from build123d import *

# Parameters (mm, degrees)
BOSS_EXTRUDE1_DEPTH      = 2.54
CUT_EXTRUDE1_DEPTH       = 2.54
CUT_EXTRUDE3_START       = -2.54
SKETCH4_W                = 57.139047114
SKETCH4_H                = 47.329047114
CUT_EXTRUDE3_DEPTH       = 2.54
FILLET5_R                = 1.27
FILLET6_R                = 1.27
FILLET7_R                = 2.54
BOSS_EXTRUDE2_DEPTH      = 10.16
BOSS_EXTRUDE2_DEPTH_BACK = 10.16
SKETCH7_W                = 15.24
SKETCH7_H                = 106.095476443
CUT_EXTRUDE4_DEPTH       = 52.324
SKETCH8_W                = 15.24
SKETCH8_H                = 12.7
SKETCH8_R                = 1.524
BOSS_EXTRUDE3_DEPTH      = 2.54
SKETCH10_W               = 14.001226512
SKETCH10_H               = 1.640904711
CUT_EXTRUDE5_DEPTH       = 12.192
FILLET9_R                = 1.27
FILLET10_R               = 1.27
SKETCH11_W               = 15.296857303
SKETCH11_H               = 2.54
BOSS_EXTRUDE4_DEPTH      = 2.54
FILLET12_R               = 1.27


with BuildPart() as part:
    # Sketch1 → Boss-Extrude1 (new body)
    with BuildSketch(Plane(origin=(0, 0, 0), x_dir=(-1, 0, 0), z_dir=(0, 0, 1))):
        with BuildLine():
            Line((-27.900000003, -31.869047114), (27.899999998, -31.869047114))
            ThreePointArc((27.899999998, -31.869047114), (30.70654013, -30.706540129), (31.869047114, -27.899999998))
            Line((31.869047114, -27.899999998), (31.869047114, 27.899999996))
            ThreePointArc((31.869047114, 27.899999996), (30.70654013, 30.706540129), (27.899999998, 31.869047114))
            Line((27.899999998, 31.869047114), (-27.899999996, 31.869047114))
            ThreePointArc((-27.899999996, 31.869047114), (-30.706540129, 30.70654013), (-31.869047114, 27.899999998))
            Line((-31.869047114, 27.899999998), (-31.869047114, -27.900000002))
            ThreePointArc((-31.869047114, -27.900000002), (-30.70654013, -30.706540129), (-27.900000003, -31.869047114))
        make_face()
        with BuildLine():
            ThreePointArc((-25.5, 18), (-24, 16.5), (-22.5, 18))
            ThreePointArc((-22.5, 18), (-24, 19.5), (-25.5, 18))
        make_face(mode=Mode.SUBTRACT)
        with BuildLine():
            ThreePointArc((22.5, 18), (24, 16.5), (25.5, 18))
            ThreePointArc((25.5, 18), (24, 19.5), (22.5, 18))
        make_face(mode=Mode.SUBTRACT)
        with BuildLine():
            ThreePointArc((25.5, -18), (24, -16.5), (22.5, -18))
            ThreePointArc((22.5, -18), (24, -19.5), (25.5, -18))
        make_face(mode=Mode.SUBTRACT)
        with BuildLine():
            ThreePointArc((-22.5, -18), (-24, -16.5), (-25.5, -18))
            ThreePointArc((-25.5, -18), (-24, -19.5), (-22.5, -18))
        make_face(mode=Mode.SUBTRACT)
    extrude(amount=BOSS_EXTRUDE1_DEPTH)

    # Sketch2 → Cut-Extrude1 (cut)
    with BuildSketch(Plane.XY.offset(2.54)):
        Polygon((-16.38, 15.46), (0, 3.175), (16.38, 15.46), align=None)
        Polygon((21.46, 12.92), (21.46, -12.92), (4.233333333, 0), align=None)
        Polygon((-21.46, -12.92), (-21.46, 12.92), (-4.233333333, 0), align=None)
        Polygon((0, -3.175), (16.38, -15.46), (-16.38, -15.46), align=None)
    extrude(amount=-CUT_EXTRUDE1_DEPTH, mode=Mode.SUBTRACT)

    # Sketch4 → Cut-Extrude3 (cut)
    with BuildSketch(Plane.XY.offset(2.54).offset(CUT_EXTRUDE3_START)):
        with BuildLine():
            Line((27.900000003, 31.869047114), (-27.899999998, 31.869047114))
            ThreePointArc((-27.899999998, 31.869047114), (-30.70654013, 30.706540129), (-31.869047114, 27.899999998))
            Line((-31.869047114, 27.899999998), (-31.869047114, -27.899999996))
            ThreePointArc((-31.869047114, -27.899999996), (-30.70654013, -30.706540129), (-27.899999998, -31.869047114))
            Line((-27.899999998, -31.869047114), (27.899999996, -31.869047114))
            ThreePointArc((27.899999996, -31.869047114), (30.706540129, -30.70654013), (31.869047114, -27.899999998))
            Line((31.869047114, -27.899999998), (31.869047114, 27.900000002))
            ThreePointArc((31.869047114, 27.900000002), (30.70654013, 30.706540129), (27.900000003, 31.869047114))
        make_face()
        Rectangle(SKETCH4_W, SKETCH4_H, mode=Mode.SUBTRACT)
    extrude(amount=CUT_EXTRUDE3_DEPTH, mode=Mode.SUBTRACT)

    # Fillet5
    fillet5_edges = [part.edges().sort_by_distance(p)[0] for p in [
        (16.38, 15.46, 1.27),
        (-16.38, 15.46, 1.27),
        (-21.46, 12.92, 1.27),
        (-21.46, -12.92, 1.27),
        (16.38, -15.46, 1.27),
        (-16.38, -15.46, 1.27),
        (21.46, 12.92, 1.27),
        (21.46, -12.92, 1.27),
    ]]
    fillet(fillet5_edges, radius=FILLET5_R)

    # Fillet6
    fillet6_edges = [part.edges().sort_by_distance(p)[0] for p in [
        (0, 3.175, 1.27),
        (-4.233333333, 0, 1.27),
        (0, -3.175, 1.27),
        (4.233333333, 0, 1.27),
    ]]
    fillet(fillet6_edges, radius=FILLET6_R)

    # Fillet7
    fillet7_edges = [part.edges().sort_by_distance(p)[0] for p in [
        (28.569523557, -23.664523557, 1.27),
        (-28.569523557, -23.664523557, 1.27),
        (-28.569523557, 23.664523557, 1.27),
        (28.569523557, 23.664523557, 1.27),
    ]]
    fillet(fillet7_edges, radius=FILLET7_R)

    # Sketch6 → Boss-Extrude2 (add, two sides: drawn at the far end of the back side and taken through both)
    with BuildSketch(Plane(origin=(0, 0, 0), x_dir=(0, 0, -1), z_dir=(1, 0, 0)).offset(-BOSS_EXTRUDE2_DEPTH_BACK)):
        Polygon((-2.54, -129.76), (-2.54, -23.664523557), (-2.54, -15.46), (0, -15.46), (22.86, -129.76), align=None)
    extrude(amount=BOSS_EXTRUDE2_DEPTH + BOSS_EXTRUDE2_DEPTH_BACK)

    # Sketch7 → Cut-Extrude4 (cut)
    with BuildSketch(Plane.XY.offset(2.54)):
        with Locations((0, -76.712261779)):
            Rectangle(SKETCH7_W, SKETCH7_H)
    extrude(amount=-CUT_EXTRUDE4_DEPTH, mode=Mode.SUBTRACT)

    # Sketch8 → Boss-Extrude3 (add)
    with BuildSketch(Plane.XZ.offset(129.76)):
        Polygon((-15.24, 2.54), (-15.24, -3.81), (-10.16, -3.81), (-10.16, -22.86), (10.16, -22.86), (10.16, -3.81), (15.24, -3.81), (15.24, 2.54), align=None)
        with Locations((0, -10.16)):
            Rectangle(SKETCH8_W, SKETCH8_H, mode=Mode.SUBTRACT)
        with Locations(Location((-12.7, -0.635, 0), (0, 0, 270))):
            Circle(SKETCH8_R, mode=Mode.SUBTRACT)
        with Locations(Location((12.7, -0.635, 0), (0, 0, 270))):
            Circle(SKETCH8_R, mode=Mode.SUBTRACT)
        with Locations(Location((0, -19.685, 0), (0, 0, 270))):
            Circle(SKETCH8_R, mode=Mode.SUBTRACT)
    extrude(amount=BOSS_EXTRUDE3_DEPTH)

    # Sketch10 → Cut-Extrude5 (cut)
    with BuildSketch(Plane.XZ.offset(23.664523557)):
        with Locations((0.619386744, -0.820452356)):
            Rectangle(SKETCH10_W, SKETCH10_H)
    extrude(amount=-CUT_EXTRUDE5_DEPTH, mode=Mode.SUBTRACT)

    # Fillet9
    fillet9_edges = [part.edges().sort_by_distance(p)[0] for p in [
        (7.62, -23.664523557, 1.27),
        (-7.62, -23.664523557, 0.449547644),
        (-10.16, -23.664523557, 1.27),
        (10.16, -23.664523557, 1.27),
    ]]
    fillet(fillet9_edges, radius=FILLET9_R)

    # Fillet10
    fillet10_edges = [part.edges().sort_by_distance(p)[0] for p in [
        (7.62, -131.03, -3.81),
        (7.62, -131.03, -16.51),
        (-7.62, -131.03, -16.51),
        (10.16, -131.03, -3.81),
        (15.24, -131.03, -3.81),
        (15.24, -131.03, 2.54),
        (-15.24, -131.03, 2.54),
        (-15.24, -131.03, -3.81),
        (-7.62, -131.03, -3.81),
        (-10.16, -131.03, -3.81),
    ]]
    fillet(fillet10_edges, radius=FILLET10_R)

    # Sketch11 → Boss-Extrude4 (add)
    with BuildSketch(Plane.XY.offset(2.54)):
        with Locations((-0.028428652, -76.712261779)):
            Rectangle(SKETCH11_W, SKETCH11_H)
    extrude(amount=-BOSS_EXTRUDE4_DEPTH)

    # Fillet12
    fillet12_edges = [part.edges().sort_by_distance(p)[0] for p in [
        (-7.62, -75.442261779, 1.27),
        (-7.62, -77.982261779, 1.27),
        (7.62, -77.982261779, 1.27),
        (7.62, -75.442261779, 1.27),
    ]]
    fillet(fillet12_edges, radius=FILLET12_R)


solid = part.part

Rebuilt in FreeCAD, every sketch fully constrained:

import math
import FreeCAD as App
import Part
import Sketcher
Q = App.Units.Quantity


def edges_at(feature, points):
    """Names of the edges that pass closest to the given points."""
    edges = feature.Shape.Edges
    near = lambda p: min(range(len(edges)), key=lambda i: edges[i].distToShape(Part.Vertex(*p))[0])
    return sorted({f"Edge{near(p) + 1}" for p in points})


def add_polygon(sketch, points):
    """Adds a closed chain of lines whose ends are joined by coincident constraints."""
    first, n = sketch.GeometryCount, len(points)
    for a, b in zip(points, points[1:] + points[:1]):
        sketch.addGeometry(Part.LineSegment(App.Vector(*a, 0), App.Vector(*b, 0)), False)
    for i in range(n):
        sketch.addConstraint(Sketcher.Constraint("Coincident", first + i, 2, first + (i + 1) % n, 1))

doc = App.newDocument("Part")
body = doc.addObject("PartDesign::Body", "Body")

sketch1 = body.newObject("Sketcher::SketchObject", "Sketch")
sketch1.AttachmentSupport = (doc.getObject("XY_Plane"), [""])
sketch1.MapMode = "FlatFace"
sketch1.addGeometry([
    Part.LineSegment(App.Vector(27.9, 31.9, 0), App.Vector(-27.9, 31.9, 0)),
    Part.ArcOfCircle(Part.Circle(App.Vector(-27.9, 27.9, 0), App.Vector(0, 0, 1), 4), math.radians(90), math.radians(180)),
    Part.LineSegment(App.Vector(-31.9, 27.9, 0), App.Vector(-31.9, -27.9, 0)),
    Part.ArcOfCircle(Part.Circle(App.Vector(-27.9, -27.9, 0), App.Vector(0, 0, 1), 4), math.radians(180), math.radians(270)),
    Part.LineSegment(App.Vector(-27.9, -31.9, 0), App.Vector(27.9, -31.9, 0)),
    Part.ArcOfCircle(Part.Circle(App.Vector(27.9, -27.9, 0), App.Vector(0, 0, 1), 4), math.radians(-90), math.radians(0)),
    Part.LineSegment(App.Vector(31.9, -27.9, 0), App.Vector(31.9, 27.9, 0)),
    Part.ArcOfCircle(Part.Circle(App.Vector(27.9, 27.9, 0), App.Vector(0, 0, 1), 4), math.radians(0), math.radians(90)),
    Part.Circle(App.Vector(24, 18, 0), App.Vector(0, 0, 1), 1.5),
    Part.Circle(App.Vector(-24, 18, 0), App.Vector(0, 0, 1), 1.5),
    Part.Circle(App.Vector(24, -18, 0), App.Vector(0, 0, 1), 1.5),
    Part.Circle(App.Vector(-24, -18, 0), App.Vector(0, 0, 1), 1.5),
], False)
sketch1.addConstraint([
    Sketcher.Constraint("Tangent", 0, 2, 1, 1),
    Sketcher.Constraint("Tangent", 1, 2, 2, 1),
    Sketcher.Constraint("Tangent", 2, 2, 3, 1),
    Sketcher.Constraint("Tangent", 3, 2, 4, 1),
    Sketcher.Constraint("Tangent", 4, 2, 5, 1),
    Sketcher.Constraint("Tangent", 5, 2, 6, 1),
    Sketcher.Constraint("Tangent", 6, 2, 7, 1),
    Sketcher.Constraint("Tangent", 7, 2, 0, 1),
    Sketcher.Constraint("Horizontal", 0),
    Sketcher.Constraint("Vertical", 2),
    Sketcher.Constraint("Horizontal", 4),
    Sketcher.Constraint("Vertical", 6),
    Sketcher.Constraint("Equal", 1, 3),
    Sketcher.Constraint("Equal", 3, 5),
    Sketcher.Constraint("Equal", 5, 7),
    Sketcher.Constraint("Equal", 8, 9),
    Sketcher.Constraint("Equal", 9, 10),
    Sketcher.Constraint("Equal", 10, 11),
    Sketcher.Constraint("Symmetric", 1, 3, 5, 3, -1, 1),
    Sketcher.Constraint("Symmetric", 9, 3, 10, 3, -1, 1),
    Sketcher.Constraint("Symmetric", 8, 3, 11, 3, -1, 1),
    Sketcher.Constraint("Symmetric", 8, 3, 9, 3, -2),
    Sketcher.Constraint("Equal", 4, 2),
    Sketcher.Constraint("Diameter", 8, 3.0),
    Sketcher.Constraint("DistanceX", 0, 2, 0, 1, 55.8),
    Sketcher.Constraint("Radius", 1, 3.969047),
    Sketcher.Constraint("DistanceX", -1, 1, 8, 3, 24.0),
    Sketcher.Constraint("DistanceY", -1, 1, 8, 3, 18.0),
])
pad1 = body.newObject("PartDesign::Pad", "Pad")
pad1.Profile = sketch1
pad1.Length = Q("0.1 in")

sketch2 = body.newObject("Sketcher::SketchObject", "Sketch001")
sketch2.AttachmentSupport = (doc.getObject("XY_Plane"), [""])
sketch2.MapMode = "FlatFace"
sketch2.AttachmentOffset = App.Placement(App.Vector(0, 0, 0.1 * 25.4), App.Rotation())
add_polygon(sketch2, [(-16, 15), (0, 3), (16, 15)])
add_polygon(sketch2, [(21, -13), (21, 13), (4, 0)])
add_polygon(sketch2, [(-21, 13), (-21, -13), (-4, 0)])
add_polygon(sketch2, [(16, -15), (0, -3), (-16, -15)])
sketch2.addConstraint([
    Sketcher.Constraint("Horizontal", 2),
    Sketcher.Constraint("Vertical", 3),
    Sketcher.Constraint("Vertical", 6),
    Sketcher.Constraint("Horizontal", 11),
    Sketcher.Constraint("Symmetric", 3, 2, 6, 2, -1, 1),
    Sketcher.Constraint("Symmetric", 4, 2, 7, 2, -1, 1),
    Sketcher.Constraint("Symmetric", 0, 2, 9, 2, -1, 1),
    Sketcher.Constraint("Symmetric", 1, 2, 10, 2, -1, 1),
    Sketcher.Constraint("PointOnObject", 0, 2, -2),
    Sketcher.Constraint("PointOnObject", 4, 2, -1),
    Sketcher.Constraint("Parallel", 1, 4),
    Sketcher.Constraint("Parallel", 0, 5),
    Sketcher.Constraint("Parallel", 5, 8),
    Sketcher.Constraint("Parallel", 8, 9),
    Sketcher.Constraint("Horizontal", 5, 2, 6, 2),
    Sketcher.Constraint("DistanceX", 1, 2, 3, 2, Q("0.2 in")),
    Sketcher.Constraint("DistanceY", 3, 2, 1, 2, Q("0.1 in")),
    Sketcher.Constraint("DistanceY", 9, 2, 0, 2, Q("0.25 in")),
    Sketcher.Constraint("DistanceX", 2, 2, 2, 1, 32.76),
    Sketcher.Constraint("DistanceY", 3, 1, 3, 2, 25.84),
])
pocket1 = body.newObject("PartDesign::Pocket", "Pocket")
pocket1.Profile = sketch2
pocket1.Length = Q("0.1 in")

sketch3 = body.newObject("Sketcher::SketchObject", "Sketch002")
sketch3.AttachmentSupport = (doc.getObject("XY_Plane"), [""])
sketch3.MapMode = "FlatFace"
sketch3.addGeometry(Part.LineSegment(App.Vector(27.9, 31.9, 0), App.Vector(-27.9, 31.9, 0)), False)
sketch3.addGeometry(Part.ArcOfCircle(Part.Circle(App.Vector(-27.9, 27.9, 0), App.Vector(0, 0, 1), 4), math.radians(90), math.radians(180)), False)
sketch3.addGeometry(Part.LineSegment(App.Vector(-31.9, 27.9, 0), App.Vector(-31.9, -27.9, 0)), False)
sketch3.addGeometry(Part.ArcOfCircle(Part.Circle(App.Vector(-27.9, -27.9, 0), App.Vector(0, 0, 1), 4), math.radians(180), math.radians(270)), False)
sketch3.addGeometry(Part.LineSegment(App.Vector(-27.9, -31.9, 0), App.Vector(27.9, -31.9, 0)), False)
sketch3.addGeometry(Part.ArcOfCircle(Part.Circle(App.Vector(27.9, -27.9, 0), App.Vector(0, 0, 1), 4), math.radians(-90), math.radians(0)), False)
sketch3.addGeometry(Part.LineSegment(App.Vector(31.9, -27.9, 0), App.Vector(31.9, 27.9, 0)), False)
sketch3.addGeometry(Part.ArcOfCircle(Part.Circle(App.Vector(27.9, 27.9, 0), App.Vector(0, 0, 1), 4), math.radians(0), math.radians(90)), False)
add_polygon(sketch3, [(28.6, -23.7), (-28.6, -23.7), (-28.6, 23.7), (28.6, 23.7)])
sketch3.addConstraint([
    Sketcher.Constraint("Tangent", 0, 2, 1, 1),
    Sketcher.Constraint("Tangent", 1, 2, 2, 1),
    Sketcher.Constraint("Tangent", 2, 2, 3, 1),
    Sketcher.Constraint("Tangent", 3, 2, 4, 1),
    Sketcher.Constraint("Tangent", 4, 2, 5, 1),
    Sketcher.Constraint("Tangent", 5, 2, 6, 1),
    Sketcher.Constraint("Tangent", 6, 2, 7, 1),
    Sketcher.Constraint("Tangent", 7, 2, 0, 1),
    Sketcher.Constraint("Horizontal", 0),
    Sketcher.Constraint("Vertical", 2),
    Sketcher.Constraint("Horizontal", 4),
    Sketcher.Constraint("Vertical", 6),
    Sketcher.Constraint("Horizontal", 8),
    Sketcher.Constraint("Vertical", 9),
    Sketcher.Constraint("Horizontal", 10),
    Sketcher.Constraint("Vertical", 11),
    Sketcher.Constraint("Equal", 1, 3),
    Sketcher.Constraint("Equal", 3, 5),
    Sketcher.Constraint("Equal", 5, 7),
    Sketcher.Constraint("Symmetric", 1, 3, 5, 3, -1, 1),
    Sketcher.Constraint("Symmetric", 8, 2, 10, 2, -1, 1),
    Sketcher.Constraint("Equal", 4, 2),
    Sketcher.Constraint("DistanceX", 0, 2, 0, 1, 55.8),
    Sketcher.Constraint("Radius", 1, 3.969047),
    Sketcher.Constraint("DistanceX", 8, 2, 8, 1, 57.139047),
    Sketcher.Constraint("DistanceY", 9, 1, 9, 2, 47.329047),
])
pocket2 = body.newObject("PartDesign::Pocket", "Pocket001")
pocket2.Profile = sketch3
pocket2.Length = Q("0.1 in")
pocket2.Reversed = True
doc.recompute()

fillet = body.newObject("PartDesign::Fillet", "Fillet")
fillet.Base = (pocket2, edges_at(pocket2, [
    (16.38, 15.46, 1.27),
    (-16.38, 15.46, 1.27),
    (-21.46, 12.92, 1.27),
    (-21.46, -12.92, 1.27),
    (16.38, -15.46, 1.27),
    (-16.38, -15.46, 1.27),
    (21.46, 12.92, 1.27),
    (21.46, -12.92, 1.27),
]))
fillet.Radius = Q("0.05 in")
doc.recompute()

fillet2 = body.newObject("PartDesign::Fillet", "Fillet001")
fillet2.Base = (fillet, edges_at(fillet, [
    (0, 3.175, 1.27),
    (-4.233, 0, 1.27),
    (0, -3.175, 1.27),
    (4.233, 0, 1.27),
]))
fillet2.Radius = Q("0.05 in")
doc.recompute()

fillet3 = body.newObject("PartDesign::Fillet", "Fillet002")
fillet3.Base = (fillet2, edges_at(fillet2, [
    (28.57, -23.665, 1.27),
    (-28.57, -23.665, 1.27),
    (-28.57, 23.665, 1.27),
    (28.57, 23.665, 1.27),
]))
fillet3.Radius = Q("0.1 in")

sketch4 = body.newObject("Sketcher::SketchObject", "Sketch003")
sketch4.AttachmentSupport = (doc.getObject("YZ_Plane"), [""])
sketch4.MapMode = "FlatFace"
add_polygon(sketch4, [(-15.5, 2.5), (-129.8, 2.5), (-129.8, -22.9), (-15.5, 0)])
sketch4.addConstraint([
    Sketcher.Constraint("Horizontal", 0),
    Sketcher.Constraint("Vertical", 1),
    Sketcher.Constraint("Vertical", 3),
    Sketcher.Constraint("PointOnObject", 2, 2, -1),
    Sketcher.Constraint("DistanceY", 1, 2, 1, 1, Q("1 in")),
    Sketcher.Constraint("DistanceX", 0, 2, 0, 1, Q("4.5 in")),
    Sketcher.Constraint("DistanceY", 3, 1, 3, 2, Q("0.1 in")),
    Sketcher.Constraint("DistanceX", 0, 2, -1, 1, 129.76),
])
pad2 = body.newObject("PartDesign::Pad", "Pad001")
pad2.Profile = sketch4
pad2.Type = "TwoLengths"
pad2.Length = Q("0.4 in")
pad2.Length2 = Q("0.4 in")

sketch5 = body.newObject("Sketcher::SketchObject", "Sketch004")
sketch5.AttachmentSupport = (doc.getObject("XY_Plane"), [""])
sketch5.MapMode = "FlatFace"
sketch5.AttachmentOffset = App.Placement(App.Vector(0, 0, 0.1 * 25.4), App.Rotation())
add_polygon(sketch5, [(-8, -24), (-8, -130), (8, -130), (8, -24)])
sketch5.addConstraint([
    Sketcher.Constraint("Vertical", 0),
    Sketcher.Constraint("Horizontal", 1),
    Sketcher.Constraint("Vertical", 2),
    Sketcher.Constraint("Horizontal", 3),
    Sketcher.Constraint("DistanceX", 1, 1, 1, 2, Q("0.6 in")),
    Sketcher.Constraint("DistanceX", 0, 2, -1, 1, Q("0.3 in")),
    Sketcher.Constraint("DistanceY", 0, 2, -1, 1, 129.76),
    Sketcher.Constraint("DistanceY", 0, 2, 0, 1, 106.095476),
])
pocket3 = body.newObject("PartDesign::Pocket", "Pocket002")
pocket3.Profile = sketch5
pocket3.Length = Q("2.06 in")

sketch6 = body.newObject("Sketcher::SketchObject", "Sketch005")
sketch6.AttachmentSupport = (doc.getObject("XZ_Plane"), [""])
sketch6.MapMode = "FlatFace"
sketch6.AttachmentOffset = App.Placement(App.Vector(0, 0, 129.76), App.Rotation())
add_polygon(sketch6, [(-15.2, 2.5), (-15.2, -3.8), (-10.2, -3.8), (-10.2, -22.9), (10.2, -22.9), (10.2, -3.8), (15.2, -3.8), (15.2, 2.5)])
sketch6.addGeometry(Part.Circle(App.Vector(0, -19.7, 0), App.Vector(0, 0, 1), 1.5), False)
add_polygon(sketch6, [(7.6, -16.5), (-7.6, -16.5), (-7.6, -3.8), (7.6, -3.8)])
sketch6.addGeometry(Part.Circle(App.Vector(-12.7, -0.6, 0), App.Vector(0, 0, 1), 1.5), False)
sketch6.addGeometry(Part.Circle(App.Vector(12.7, -0.6, 0), App.Vector(0, 0, 1), 1.5), False)
sketch6.addConstraint([
    Sketcher.Constraint("Vertical", 0),
    Sketcher.Constraint("Horizontal", 1),
    Sketcher.Constraint("Vertical", 2),
    Sketcher.Constraint("Horizontal", 3),
    Sketcher.Constraint("Vertical", 4),
    Sketcher.Constraint("Horizontal", 5),
    Sketcher.Constraint("Vertical", 6),
    Sketcher.Constraint("Horizontal", 7),
    Sketcher.Constraint("Horizontal", 9),
    Sketcher.Constraint("Vertical", 10),
    Sketcher.Constraint("Horizontal", 11),
    Sketcher.Constraint("Vertical", 12),
    Sketcher.Constraint("Equal", 8, 13),
    Sketcher.Constraint("Equal", 13, 14),
    Sketcher.Constraint("Symmetric", 13, 3, 14, 3, -2),
    Sketcher.Constraint("Symmetric", 1, 2, 4, 2, -2),
    Sketcher.Constraint("PointOnObject", 8, 3, -2),
    Sketcher.Constraint("Horizontal", 5, 2, 10, 2),
    Sketcher.Constraint("Equal", 1, 5),
    Sketcher.Constraint("Diameter", 8, Q("0.12 in")),
    Sketcher.Constraint("DistanceX", 1, 1, 1, 2, Q("0.2 in")),
    Sketcher.Constraint("DistanceX", 3, 1, 3, 2, Q("0.8 in")),
    Sketcher.Constraint("DistanceX", 9, 2, 9, 1, Q("0.6 in")),
    Sketcher.Constraint("DistanceY", 10, 1, 10, 2, Q("0.5 in")),
    Sketcher.Constraint("DistanceX", 13, 3, 14, 3, Q("1 in")),
    Sketcher.Constraint("DistanceY", 3, 2, 6, 2, Q("1 in")),
    Sketcher.Constraint("DistanceY", 0, 2, 0, 1, Q("0.25 in")),
    Sketcher.Constraint("DistanceY", 2, 2, -1, 1, Q("0.9 in")),
    Sketcher.Constraint("DistanceX", 9, 2, -1, 1, Q("0.3 in")),
    Sketcher.Constraint("DistanceY", 8, 3, 13, 3, Q("0.75 in")),
    Sketcher.Constraint("DistanceY", 8, 3, -1, 1, Q("0.775 in")),
])
pad3 = body.newObject("PartDesign::Pad", "Pad002")
pad3.Profile = sketch6
pad3.Length = Q("0.1 in")

sketch7 = body.newObject("Sketcher::SketchObject", "Sketch006")
sketch7.AttachmentSupport = (doc.getObject("XZ_Plane"), [""])
sketch7.MapMode = "FlatFace"
sketch7.AttachmentOffset = App.Placement(App.Vector(0, 0, 23.664524), App.Rotation())
add_polygon(sketch7, [(-6.4, 0), (-6.4, -1.6), (7.6, -1.6), (7.6, 0)])
sketch7.addConstraint([
    Sketcher.Constraint("Vertical", 0),
    Sketcher.Constraint("Horizontal", 1),
    Sketcher.Constraint("Vertical", 2),
    Sketcher.Constraint("Horizontal", 3),
    Sketcher.Constraint("PointOnObject", 2, 2, -1),
    Sketcher.Constraint("DistanceX", -1, 1, 1, 2, Q("0.3 in")),
    Sketcher.Constraint("DistanceX", 1, 1, 1, 2, 14.001227),
    Sketcher.Constraint("DistanceY", 0, 2, 0, 1, 1.640905),
])
pocket4 = body.newObject("PartDesign::Pocket", "Pocket003")
pocket4.Profile = sketch7
pocket4.Length = Q("0.48 in")
doc.recompute()

fillet4 = body.newObject("PartDesign::Fillet", "Fillet003")
fillet4.Base = (pocket4, edges_at(pocket4, [
    (7.62, -23.665, 1.27),
    (-7.62, -23.665, 0.45),
    (-10.16, -23.665, 1.27),
    (10.16, -23.665, 1.27),
]))
fillet4.Radius = Q("0.05 in")
doc.recompute()

fillet5 = body.newObject("PartDesign::Fillet", "Fillet004")
fillet5.Base = (fillet4, edges_at(fillet4, [
    (7.62, -131.03, -3.81),
    (7.62, -131.03, -16.51),
    (-7.62, -131.03, -16.51),
    (10.16, -131.03, -3.81),
    (15.24, -131.03, -3.81),
    (15.24, -131.03, 2.54),
    (-15.24, -131.03, 2.54),
    (-15.24, -131.03, -3.81),
    (-7.62, -131.03, -3.81),
    (-10.16, -131.03, -3.81),
]))
fillet5.Radius = Q("0.05 in")

sketch8 = body.newObject("Sketcher::SketchObject", "Sketch007")
sketch8.AttachmentSupport = (doc.getObject("XY_Plane"), [""])
sketch8.MapMode = "FlatFace"
sketch8.AttachmentOffset = App.Placement(App.Vector(0, 0, 0.1 * 25.4), App.Rotation())
add_polygon(sketch8, [(-7.7, -75.4), (-7.7, -78), (7.6, -78), (7.6, -75.4)])
sketch8.addConstraint([
    Sketcher.Constraint("Vertical", 0),
    Sketcher.Constraint("Horizontal", 1),
    Sketcher.Constraint("Vertical", 2),
    Sketcher.Constraint("Horizontal", 3),
    Sketcher.Constraint("DistanceY", 0, 2, 0, 1, Q("0.1 in")),
    Sketcher.Constraint("DistanceX", -1, 1, 1, 2, Q("0.3 in")),
    Sketcher.Constraint("DistanceX", 1, 1, 1, 2, 15.296857),
    Sketcher.Constraint("DistanceY", 0, 2, -1, 1, 77.982262),
])
pad4 = body.newObject("PartDesign::Pad", "Pad003")
pad4.Profile = sketch8
pad4.Length = Q("0.1 in")
pad4.Reversed = True
doc.recompute()

fillet6 = body.newObject("PartDesign::Fillet", "Fillet005")
fillet6.Base = (pad4, edges_at(pad4, [
    (-7.62, -75.442, 1.27),
    (-7.62, -77.982, 1.27),
    (7.62, -77.982, 1.27),
    (7.62, -75.442, 1.27),
]))
fillet6.Radius = Q("0.05 in")

doc.recompute()
